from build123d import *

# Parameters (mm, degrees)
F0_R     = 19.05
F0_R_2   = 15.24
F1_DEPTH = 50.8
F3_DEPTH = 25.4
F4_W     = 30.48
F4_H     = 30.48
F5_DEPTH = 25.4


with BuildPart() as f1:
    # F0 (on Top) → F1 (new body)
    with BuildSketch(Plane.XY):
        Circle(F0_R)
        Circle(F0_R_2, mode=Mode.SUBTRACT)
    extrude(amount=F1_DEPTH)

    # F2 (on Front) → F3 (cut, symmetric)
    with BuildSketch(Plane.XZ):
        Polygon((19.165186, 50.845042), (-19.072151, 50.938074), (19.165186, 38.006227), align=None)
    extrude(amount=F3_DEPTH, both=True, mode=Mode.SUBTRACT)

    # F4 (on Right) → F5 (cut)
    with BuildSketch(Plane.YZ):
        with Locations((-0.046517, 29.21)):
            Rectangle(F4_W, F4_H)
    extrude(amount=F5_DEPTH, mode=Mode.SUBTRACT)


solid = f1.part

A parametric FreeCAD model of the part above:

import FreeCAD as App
import Part
import Sketcher
from FreeCAD import Vector
Q = App.Units.Quantity

doc = App.newDocument("Part")
body = doc.addObject("PartDesign::Body", "Body")

# Sketch on XY plane
sketch1 = body.newObject("Sketcher::SketchObject", "Sketch")
sketch1.AttachmentSupport = (doc.getObject("XY_Plane"), [""])
sketch1.MapMode = "FlatFace"
sketch1.addGeometry([
    Part.Circle(Vector(0, 0, 0), Vector(0, 0, 1), 19),
    Part.Circle(Vector(0, 0, 0), Vector(0, 0, 1), 15),
], False)
sketch1.addConstraint([
    Sketcher.Constraint("Coincident", 0, 3, -1, 1),
    Sketcher.Constraint("Coincident", 1, 3, -1, 1),
    Sketcher.Constraint("Diameter", 0, Q("1.5 in")),
    Sketcher.Constraint("Diameter", 1, Q("1.2 in")),
])
pad1 = body.newObject("PartDesign::Pad", "Pad")
pad1.Profile = sketch1
pad1.Length = Q("2 in")

# Sketch on XZ plane
sketch2 = body.newObject("Sketcher::SketchObject", "Sketch001")
sketch2.AttachmentSupport = (doc.getObject("XZ_Plane"), [""])
sketch2.MapMode = "FlatFace"
sketch2.addGeometry([
    Part.LineSegment(Vector(19, 51, 0), Vector(-19, 51, 0)),
    Part.LineSegment(Vector(-19, 51, 0), Vector(19, 38, 0)),
    Part.LineSegment(Vector(19, 38, 0), Vector(19, 51, 0)),
], False)
sketch2.addConstraint([
    Sketcher.Constraint("Coincident", 0, 2, 1, 1),
    Sketcher.Constraint("Coincident", 1, 2, 2, 1),
    Sketcher.Constraint("Coincident", 2, 2, 0, 1),
    Sketcher.Constraint("Vertical", 2),
    Sketcher.Constraint("Distance", 0, Q("38.23745 mm")),
    Sketcher.Constraint("Distance", 1, Q("40.364918 mm")),
    Sketcher.Constraint("DistanceY", 2, 1, 2, 2, Q("12.838815 mm")),
    Sketcher.Constraint("DistanceX", 0, 2, -1, 1, Q("19.072151 mm")),
    Sketcher.Constraint("DistanceY", -1, 1, 0, 2, Q("50.938074 mm")),
])
pocket1 = body.newObject("PartDesign::Pocket", "Pocket")
pocket1.Profile = sketch2
pocket1.Length = Q("2 in")
pocket1.Midplane = True

# Sketch on YZ plane
sketch3 = body.newObject("Sketcher::SketchObject", "Sketch002")
sketch3.AttachmentSupport = (doc.getObject("YZ_Plane"), [""])
sketch3.MapMode = "FlatFace"
sketch3.addGeometry([
    Part.LineSegment(Vector(-15, 44, 0), Vector(-15, 14, 0)),
    Part.LineSegment(Vector(-15, 14, 0), Vector(15, 14, 0)),
    Part.LineSegment(Vector(15, 14, 0), Vector(15, 44, 0)),
    Part.LineSegment(Vector(15, 44, 0), Vector(-15, 44, 0)),
], False)
sketch3.addConstraint([
    Sketcher.Constraint("Coincident", 0, 2, 1, 1),
    Sketcher.Constraint("Coincident", 1, 2, 2, 1),
    Sketcher.Constraint("Coincident", 2, 2, 3, 1),
    Sketcher.Constraint("Coincident", 3, 2, 0, 1),
    Sketcher.Constraint("Vertical", 0),
    Sketcher.Constraint("Horizontal", 1),
    Sketcher.Constraint("Vertical", 2),
    Sketcher.Constraint("Horizontal", 3),
    Sketcher.Constraint("Equal", 3, 0),
    Sketcher.Constraint("DistanceX", 1, 1, 1, 2, Q("1.2 in")),
    Sketcher.Constraint("DistanceY", -1, 1, 0, 2, Q("0.55 in")),
    Sketcher.Constraint("DistanceX", 0, 2, -1, 1, Q("15.286517 mm")),
])
pocket2 = body.newObject("PartDesign::Pocket", "Pocket001")
pocket2.Profile = sketch3
pocket2.Length = Q("1 in")
pocket2.Reversed = True

doc.recompute()
